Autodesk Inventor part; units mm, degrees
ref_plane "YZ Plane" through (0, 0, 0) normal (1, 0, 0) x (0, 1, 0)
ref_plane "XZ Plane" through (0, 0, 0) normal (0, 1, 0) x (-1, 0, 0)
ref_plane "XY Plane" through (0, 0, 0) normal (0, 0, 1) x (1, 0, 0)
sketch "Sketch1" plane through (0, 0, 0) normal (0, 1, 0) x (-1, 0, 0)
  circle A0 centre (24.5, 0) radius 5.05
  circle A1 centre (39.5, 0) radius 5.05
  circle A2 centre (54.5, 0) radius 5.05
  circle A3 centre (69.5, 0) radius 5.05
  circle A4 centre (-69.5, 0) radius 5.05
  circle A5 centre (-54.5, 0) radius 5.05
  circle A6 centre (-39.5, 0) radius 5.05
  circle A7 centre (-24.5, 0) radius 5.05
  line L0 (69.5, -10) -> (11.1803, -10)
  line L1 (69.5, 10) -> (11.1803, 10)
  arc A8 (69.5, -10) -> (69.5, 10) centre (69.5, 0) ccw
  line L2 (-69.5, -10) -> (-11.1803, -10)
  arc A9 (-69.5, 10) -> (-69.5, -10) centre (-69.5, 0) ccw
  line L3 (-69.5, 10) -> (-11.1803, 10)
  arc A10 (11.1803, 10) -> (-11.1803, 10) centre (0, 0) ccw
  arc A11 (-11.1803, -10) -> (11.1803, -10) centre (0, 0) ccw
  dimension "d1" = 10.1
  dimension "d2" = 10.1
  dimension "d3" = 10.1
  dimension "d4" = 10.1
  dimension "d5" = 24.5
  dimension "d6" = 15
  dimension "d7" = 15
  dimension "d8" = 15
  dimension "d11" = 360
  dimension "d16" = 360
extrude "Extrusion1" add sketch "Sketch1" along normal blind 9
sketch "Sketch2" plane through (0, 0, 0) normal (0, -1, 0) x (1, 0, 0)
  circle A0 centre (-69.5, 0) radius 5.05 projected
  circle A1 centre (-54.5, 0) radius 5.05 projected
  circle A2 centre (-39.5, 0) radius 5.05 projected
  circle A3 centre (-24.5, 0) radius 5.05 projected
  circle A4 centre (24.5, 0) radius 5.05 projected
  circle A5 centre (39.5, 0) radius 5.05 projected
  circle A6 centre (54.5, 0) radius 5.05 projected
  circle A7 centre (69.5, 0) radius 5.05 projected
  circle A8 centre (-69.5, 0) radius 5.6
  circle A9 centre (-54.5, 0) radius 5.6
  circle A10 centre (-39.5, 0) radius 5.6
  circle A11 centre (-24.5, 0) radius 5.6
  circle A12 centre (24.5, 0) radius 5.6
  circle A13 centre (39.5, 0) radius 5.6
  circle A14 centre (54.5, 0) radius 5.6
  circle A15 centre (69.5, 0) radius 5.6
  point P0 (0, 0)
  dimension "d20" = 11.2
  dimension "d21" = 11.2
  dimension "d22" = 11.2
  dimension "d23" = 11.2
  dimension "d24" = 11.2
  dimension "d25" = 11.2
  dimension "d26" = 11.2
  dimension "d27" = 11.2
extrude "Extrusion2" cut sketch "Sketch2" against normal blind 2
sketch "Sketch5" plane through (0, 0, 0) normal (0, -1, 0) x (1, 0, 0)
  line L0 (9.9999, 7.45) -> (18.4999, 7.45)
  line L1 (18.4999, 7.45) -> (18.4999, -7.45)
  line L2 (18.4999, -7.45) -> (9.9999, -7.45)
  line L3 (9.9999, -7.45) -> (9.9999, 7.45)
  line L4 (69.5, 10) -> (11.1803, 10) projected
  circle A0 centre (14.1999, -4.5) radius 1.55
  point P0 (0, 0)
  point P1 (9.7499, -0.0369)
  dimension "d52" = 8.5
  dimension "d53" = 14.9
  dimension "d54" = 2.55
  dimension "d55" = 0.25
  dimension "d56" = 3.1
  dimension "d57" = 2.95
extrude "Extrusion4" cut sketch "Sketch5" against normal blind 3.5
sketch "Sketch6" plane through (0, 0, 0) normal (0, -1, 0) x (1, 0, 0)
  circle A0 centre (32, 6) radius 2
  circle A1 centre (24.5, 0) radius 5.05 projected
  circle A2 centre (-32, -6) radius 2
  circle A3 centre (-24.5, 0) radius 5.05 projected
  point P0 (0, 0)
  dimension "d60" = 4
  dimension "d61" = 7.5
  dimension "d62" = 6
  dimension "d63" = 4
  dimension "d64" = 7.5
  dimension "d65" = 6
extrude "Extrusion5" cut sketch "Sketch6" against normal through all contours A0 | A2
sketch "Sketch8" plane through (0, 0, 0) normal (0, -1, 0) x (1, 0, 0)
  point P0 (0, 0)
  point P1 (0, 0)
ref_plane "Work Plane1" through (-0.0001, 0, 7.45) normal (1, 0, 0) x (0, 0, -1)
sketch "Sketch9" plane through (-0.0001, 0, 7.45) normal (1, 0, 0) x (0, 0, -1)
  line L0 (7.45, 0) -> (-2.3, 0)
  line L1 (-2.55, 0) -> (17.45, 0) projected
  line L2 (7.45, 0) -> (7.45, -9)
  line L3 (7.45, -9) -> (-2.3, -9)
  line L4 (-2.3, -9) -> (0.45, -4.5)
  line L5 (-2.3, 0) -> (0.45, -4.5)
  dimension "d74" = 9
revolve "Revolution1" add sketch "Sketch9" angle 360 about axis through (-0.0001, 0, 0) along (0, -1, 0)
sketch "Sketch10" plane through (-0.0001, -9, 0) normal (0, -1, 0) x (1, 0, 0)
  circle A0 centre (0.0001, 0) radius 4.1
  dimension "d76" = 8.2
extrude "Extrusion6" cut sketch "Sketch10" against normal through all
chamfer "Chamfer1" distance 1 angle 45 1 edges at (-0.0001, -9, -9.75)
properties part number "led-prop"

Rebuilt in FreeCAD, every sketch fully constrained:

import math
import FreeCAD as App
import Part
import Sketcher
Q = App.Units.Quantity


def edges_at(feature, points):
    """Names of the edges that pass closest to the given points."""
    edges = feature.Shape.Edges
    near = lambda p: min(range(len(edges)), key=lambda i: edges[i].distToShape(Part.Vertex(*p))[0])
    return sorted({f"Edge{near(p) + 1}" for p in points})

doc = App.newDocument("Part")
params = doc.addObject("Spreadsheet::Sheet", "Params")
for row, (alias, value) in enumerate([
    ("sketch1_radius", "15 mm"),
    ("sketch1_diameter", "10.1 mm"),
    ("sketch1_radius2", "10 mm"),
    ("pad1_length", "9 mm"),
    ("sketch2_diameter", "11.2 mm"),
    ("sketch2_diameter2", "10.1 mm"),
    ("pocket1_length", "2 mm"),
    ("sketch3_diameter", "3.1 mm"),
    ("sketch3_width", "8.5 mm"),
    ("sketch3_height", "14.9 mm"),
    ("pocket2_length", "3.5 mm"),
    ("sketch4_diameter", "4 mm"),
    ("sketch5_width", "9 mm"),
    ("sketch5_height", "9.75 mm"),
    ("revolution_angle", "360 deg"),
    ("sketch6_diameter", "8.2 mm"),
    ("chamfer_size", "1 mm"),
], start=1):
    params.set(f"A{row}", alias)
    params.set(f"B{row}", "=" + value)
    params.setAlias(f"B{row}", alias)

body = doc.addObject("PartDesign::Body", "Body")

# Sketch on XZ plane
sketch1 = body.newObject("Sketcher::SketchObject", "Sketch")
sketch1.AttachmentSupport = (doc.getObject("XZ_Plane"), [""])
sketch1.MapMode = "FlatFace"
sketch1.addGeometry(Part.LineSegment(App.Vector(-11.1803, -10, 0), App.Vector(-69.5, -10, 0)), False)
sketch1.addGeometry(Part.ArcOfCircle(Part.Circle(App.Vector(-69.5, 0, 0), App.Vector(0, 0, 1), 10), math.radians(90), math.radians(270)), False)
sketch1.addGeometry(Part.LineSegment(App.Vector(-69.5, 10, 0), App.Vector(-11.1803, 10, 0)), False)
sketch1.addGeometry(Part.ArcOfCircle(Part.Circle(App.Vector(0, 0, 0), App.Vector(0, 0, 1), 14.99997), math.radians(41.810416), math.radians(138.189584)), False)
sketch1.addGeometry(Part.LineSegment(App.Vector(11.1803, 10, 0), App.Vector(69.5, 10, 0)), False)
sketch1.addGeometry(Part.ArcOfCircle(Part.Circle(App.Vector(69.5, 0, 0), App.Vector(0, 0, 1), 10), math.radians(-90), math.radians(90)), False)
sketch1.addGeometry(Part.LineSegment(App.Vector(69.5, -10, 0), App.Vector(11.1803, -10, 0)), False)
sketch1.addGeometry(Part.ArcOfCircle(Part.Circle(App.Vector(0, 0, 0), App.Vector(0, 0, 1), 14.99997), math.radians(-138.189584), math.radians(-41.810416)), False)
sketch1.addGeometry(Part.Circle(App.Vector(69.5, 0, 0), App.Vector(0, 0, 1), 5.05), False)
sketch1.addGeometry(Part.Circle(App.Vector(54.5, 0, 0), App.Vector(0, 0, 1), 5.05), False)
sketch1.addGeometry(Part.Circle(App.Vector(39.5, 0, 0), App.Vector(0, 0, 1), 5.05), False)
sketch1.addGeometry(Part.Circle(App.Vector(24.5, 0, 0), App.Vector(0, 0, 1), 5.05), False)
sketch1.addGeometry(Part.Circle(App.Vector(-24.5, 0, 0), App.Vector(0, 0, 1), 5.05), False)
sketch1.addGeometry(Part.Circle(App.Vector(-39.5, 0, 0), App.Vector(0, 0, 1), 5.05), False)
sketch1.addGeometry(Part.Circle(App.Vector(-54.5, 0, 0), App.Vector(0, 0, 1), 5.05), False)
sketch1.addGeometry(Part.Circle(App.Vector(-69.5, 0, 0), App.Vector(0, 0, 1), 5.05), False)
sketch1.addConstraint(Sketcher.Constraint("Tangent", 0, 2, 1, 2))
sketch1.addConstraint(Sketcher.Constraint("Tangent", 1, 1, 2, 1))
sketch1.addConstraint(Sketcher.Constraint("Coincident", 2, 2, 3, 2))
sketch1.addConstraint(Sketcher.Constraint("Coincident", 3, 1, 4, 1))
sketch1.addConstraint(Sketcher.Constraint("Tangent", 4, 2, 5, 2))
sketch1.addConstraint(Sketcher.Constraint("Tangent", 5, 1, 6, 1))
sketch1.addConstraint(Sketcher.Constraint("Coincident", 6, 2, 7, 2))
sketch1.addConstraint(Sketcher.Constraint("Coincident", 7, 1, 0, 1))
sketch1.addConstraint(Sketcher.Constraint("Horizontal", 0))
sketch1.addConstraint(Sketcher.Constraint("Horizontal", 2))
sketch1.addConstraint(Sketcher.Constraint("Horizontal", 4))
sketch1.addConstraint(Sketcher.Constraint("Horizontal", 6))
sketch1.addConstraint(Sketcher.Constraint("Coincident", 3, 3, -1, 1))
sketch1.addConstraint(Sketcher.Constraint("Coincident", 7, 3, -1, 1))
sketch1.addConstraint(Sketcher.Constraint("Coincident", 8, 3, 5, 3))
sketch1.addConstraint(Sketcher.Constraint("Coincident", 15, 3, 1, 3))
sketch1.addConstraint(Sketcher.Constraint("Equal", 1, 5))
sketch1.addConstraint(Sketcher.Constraint("Equal", 3, 7))
sketch1.addConstraint(Sketcher.Constraint("Equal", 8, 9))
sketch1.addConstraint(Sketcher.Constraint("Equal", 9, 10))
sketch1.addConstraint(Sketcher.Constraint("Equal", 10, 11))
sketch1.addConstraint(Sketcher.Constraint("Equal", 11, 12))
sketch1.addConstraint(Sketcher.Constraint("Equal", 12, 13))
sketch1.addConstraint(Sketcher.Constraint("Equal", 13, 14))
sketch1.addConstraint(Sketcher.Constraint("Equal", 14, 15))
sketch1.addConstraint(Sketcher.Constraint("Symmetric", 1, 3, 5, 3, -1, 1))
sketch1.addConstraint(Sketcher.Constraint("Symmetric", 11, 3, 12, 3, -1, 1))
sketch1.addConstraint(Sketcher.Constraint("Symmetric", 10, 3, 13, 3, -1, 1))
sketch1.addConstraint(Sketcher.Constraint("Symmetric", 9, 3, 14, 3, -1, 1))
sketch1.addConstraint(Sketcher.Constraint("PointOnObject", 1, 3, -1))
sketch1.addConstraint(Sketcher.Constraint("PointOnObject", 9, 3, -1))
sketch1.addConstraint(Sketcher.Constraint("PointOnObject", 10, 3, -1))
sketch1.addConstraint(Sketcher.Constraint("PointOnObject", 11, 3, -1))
sketch1.addConstraint(Sketcher.Constraint("Radius", 3, Q("15 mm")))
sketch1.addConstraint(Sketcher.Constraint("Diameter", 8, Q("10.1 mm")))
sketch1.addConstraint(Sketcher.Constraint("Radius", 1, Q("10 mm")))
sketch1.addConstraint(Sketcher.Constraint("DistanceX", 9, 3, 5, 3, Q("15 mm")))
sketch1.addConstraint(Sketcher.Constraint("DistanceX", 10, 3, 9, 3, Q("15 mm")))
sketch1.addConstraint(Sketcher.Constraint("DistanceX", 11, 3, 10, 3, Q("15 mm")))
sketch1.addConstraint(Sketcher.Constraint("DistanceX", -1, 1, 11, 3, Q("24.5 mm")))
sketch1.setExpression("Constraints[33]", "Params.sketch1_radius")
sketch1.setExpression("Constraints[34]", "Params.sketch1_diameter")
sketch1.setExpression("Constraints[35]", "Params.sketch1_radius2")
pad1 = body.newObject("PartDesign::Pad", "Pad")
pad1.Profile = sketch1
pad1.setExpression("Length", "Params.pad1_length")
pad1.Reversed = True

# Sketch on XZ plane
sketch2 = body.newObject("Sketcher::SketchObject", "Sketch001")
sketch2.AttachmentSupport = (doc.getObject("XZ_Plane"), [""])
sketch2.MapMode = "FlatFace"
sketch2.addGeometry(Part.Circle(App.Vector(-69.5, 0, 0), App.Vector(0, 0, 1), 5.6), False)
sketch2.addGeometry(Part.Circle(App.Vector(-69.5, 0, 0), App.Vector(0, 0, 1), 5.05), False)
sketch2.addGeometry(Part.Circle(App.Vector(-54.5, 0, 0), App.Vector(0, 0, 1), 5.6), False)
sketch2.addGeometry(Part.Circle(App.Vector(-54.5, 0, 0), App.Vector(0, 0, 1), 5.05), False)
sketch2.addGeometry(Part.Circle(App.Vector(-39.5, 0, 0), App.Vector(0, 0, 1), 5.6), False)
sketch2.addGeometry(Part.Circle(App.Vector(-39.5, 0, 0), App.Vector(0, 0, 1), 5.05), False)
sketch2.addGeometry(Part.Circle(App.Vector(-24.5, 0, 0), App.Vector(0, 0, 1), 5.6), False)
sketch2.addGeometry(Part.Circle(App.Vector(-24.5, 0, 0), App.Vector(0, 0, 1), 5.05), False)
sketch2.addGeometry(Part.Circle(App.Vector(24.5, 0, 0), App.Vector(0, 0, 1), 5.6), False)
sketch2.addGeometry(Part.Circle(App.Vector(24.5, 0, 0), App.Vector(0, 0, 1), 5.05), False)
sketch2.addGeometry(Part.Circle(App.Vector(39.5, 0, 0), App.Vector(0, 0, 1), 5.6), False)
sketch2.addGeometry(Part.Circle(App.Vector(39.5, 0, 0), App.Vector(0, 0, 1), 5.05), False)
sketch2.addGeometry(Part.Circle(App.Vector(54.5, 0, 0), App.Vector(0, 0, 1), 5.6), False)
sketch2.addGeometry(Part.Circle(App.Vector(54.5, 0, 0), App.Vector(0, 0, 1), 5.05), False)
sketch2.addGeometry(Part.Circle(App.Vector(69.5, 0, 0), App.Vector(0, 0, 1), 5.6), False)
sketch2.addGeometry(Part.Circle(App.Vector(69.5, 0, 0), App.Vector(0, 0, 1), 5.05), False)
sketch2.addConstraint(Sketcher.Constraint("Coincident", 1, 3, 0, 3))
sketch2.addConstraint(Sketcher.Constraint("Coincident", 3, 3, 2, 3))
sketch2.addConstraint(Sketcher.Constraint("Coincident", 5, 3, 4, 3))
sketch2.addConstraint(Sketcher.Constraint("Coincident", 7, 3, 6, 3))
sketch2.addConstraint(Sketcher.Constraint("Coincident", 9, 3, 8, 3))
sketch2.addConstraint(Sketcher.Constraint("Coincident", 11, 3, 10, 3))
sketch2.addConstraint(Sketcher.Constraint("Coincident", 13, 3, 12, 3))
sketch2.addConstraint(Sketcher.Constraint("Coincident", 15, 3, 14, 3))
sketch2.addConstraint(Sketcher.Constraint("Equal", 0, 2))
sketch2.addConstraint(Sketcher.Constraint("Equal", 1, 3))
sketch2.addConstraint(Sketcher.Constraint("Equal", 2, 4))
sketch2.addConstraint(Sketcher.Constraint("Equal", 3, 5))
sketch2.addConstraint(Sketcher.Constraint("Equal", 4, 6))
sketch2.addConstraint(Sketcher.Constraint("Equal", 5, 7))
sketch2.addConstraint(Sketcher.Constraint("Equal", 6, 8))
sketch2.addConstraint(Sketcher.Constraint("Equal", 7, 9))
sketch2.addConstraint(Sketcher.Constraint("Equal", 8, 10))
sketch2.addConstraint(Sketcher.Constraint("Equal", 9, 11))
sketch2.addConstraint(Sketcher.Constraint("Equal", 10, 12))
sketch2.addConstraint(Sketcher.Constraint("Equal", 11, 13))
sketch2.addConstraint(Sketcher.Constraint("Equal", 12, 14))
sketch2.addConstraint(Sketcher.Constraint("Equal", 13, 15))
sketch2.addConstraint(Sketcher.Constraint("Symmetric", 6, 3, 8, 3, -1, 1))
sketch2.addConstraint(Sketcher.Constraint("Symmetric", 4, 3, 10, 3, -1, 1))
sketch2.addConstraint(Sketcher.Constraint("Symmetric", 2, 3, 12, 3, -1, 1))
sketch2.addConstraint(Sketcher.Constraint("Symmetric", 0, 3, 14, 3, -1, 1))
sketch2.addConstraint(Sketcher.Constraint("PointOnObject", 0, 3, -1))
sketch2.addConstraint(Sketcher.Constraint("PointOnObject", 2, 3, -1))
sketch2.addConstraint(Sketcher.Constraint("PointOnObject", 4, 3, -1))
sketch2.addConstraint(Sketcher.Constraint("PointOnObject", 6, 3, -1))
sketch2.addConstraint(Sketcher.Constraint("Diameter", 0, Q("11.2 mm")))
sketch2.addConstraint(Sketcher.Constraint("Diameter", 1, Q("10.1 mm")))
sketch2.addConstraint(Sketcher.Constraint("DistanceX", 0, 3, 2, 3, Q("15 mm")))
sketch2.addConstraint(Sketcher.Constraint("DistanceX", 2, 3, 4, 3, Q("15 mm")))
sketch2.addConstraint(Sketcher.Constraint("DistanceX", 4, 3, 6, 3, Q("15 mm")))
sketch2.addConstraint(Sketcher.Constraint("DistanceX", 6, 3, 8, 3, Q("49 mm")))
sketch2.setExpression("Constraints[30]", "Params.sketch2_diameter")
sketch2.setExpression("Constraints[31]", "Params.sketch2_diameter2")
pocket1 = body.newObject("PartDesign::Pocket", "Pocket")
pocket1.Profile = sketch2
pocket1.setExpression("Length", "Params.pocket1_length")

# Sketch on XZ plane
sketch3 = body.newObject("Sketcher::SketchObject", "Sketch002")
sketch3.AttachmentSupport = (doc.getObject("XZ_Plane"), [""])
sketch3.MapMode = "FlatFace"
sketch3.addGeometry(Part.LineSegment(App.Vector(18.4999, 7.45, 0), App.Vector(9.9999, 7.45, 0)), False)
sketch3.addGeometry(Part.LineSegment(App.Vector(9.9999, 7.45, 0), App.Vector(9.9999, -7.45, 0)), False)
sketch3.addGeometry(Part.LineSegment(App.Vector(9.9999, -7.45, 0), App.Vector(18.4999, -7.45, 0)), False)
sketch3.addGeometry(Part.LineSegment(App.Vector(18.4999, -7.45, 0), App.Vector(18.4999, 7.45, 0)), False)
sketch3.addGeometry(Part.Circle(App.Vector(14.1999, -4.5, 0), App.Vector(0, 0, 1), 1.55), False)
sketch3.addConstraint(Sketcher.Constraint("Coincident", 0, 2, 1, 1))
sketch3.addConstraint(Sketcher.Constraint("Coincident", 1, 2, 2, 1))
sketch3.addConstraint(Sketcher.Constraint("Coincident", 2, 2, 3, 1))
sketch3.addConstraint(Sketcher.Constraint("Coincident", 3, 2, 0, 1))
sketch3.addConstraint(Sketcher.Constraint("Horizontal", 0))
sketch3.addConstraint(Sketcher.Constraint("Vertical", 1))
sketch3.addConstraint(Sketcher.Constraint("Horizontal", 2))
sketch3.addConstraint(Sketcher.Constraint("Vertical", 3))
sketch3.addConstraint(Sketcher.Constraint("Diameter", 4, Q("3.1 mm")))
sketch3.addConstraint(Sketcher.Constraint("DistanceX", 0, 2, 0, 1, Q("8.5 mm")))
sketch3.addConstraint(Sketcher.Constraint("DistanceY", 1, 2, 1, 1, Q("14.9 mm")))
sketch3.addConstraint(Sketcher.Constraint("DistanceY", 1, 2, 4, 3, Q("2.95 mm")))
sketch3.addConstraint(Sketcher.Constraint("DistanceX", -1, 1, 0, 2, Q("10 mm")))
sketch3.addConstraint(Sketcher.Constraint("DistanceX", -1, 1, 4, 3, Q("14.2 mm")))
sketch3.addConstraint(Sketcher.Constraint("DistanceY", 4, 3, -1, 1, Q("4.5 mm")))
sketch3.setExpression("Constraints[8]", "Params.sketch3_diameter")
sketch3.setExpression("Constraints[9]", "Params.sketch3_width")
sketch3.setExpression("Constraints[10]", "Params.sketch3_height")
pocket2 = body.newObject("PartDesign::Pocket", "Pocket001")
pocket2.Profile = sketch3
pocket2.setExpression("Length", "Params.pocket2_length")

# Sketch on XZ plane
sketch4 = body.newObject("Sketcher::SketchObject", "Sketch003")
sketch4.AttachmentSupport = (doc.getObject("XZ_Plane"), [""])
sketch4.MapMode = "FlatFace"
sketch4.addGeometry(Part.Circle(App.Vector(32, 6, 0), App.Vector(0, 0, 1), 2), False)
sketch4.addGeometry(Part.Circle(App.Vector(-32, -6, 0), App.Vector(0, 0, 1), 2), False)
sketch4.addConstraint(Sketcher.Constraint("Equal", 0, 1))
sketch4.addConstraint(Sketcher.Constraint("Symmetric", 0, 3, 1, 3, -1, 1))
sketch4.addConstraint(Sketcher.Constraint("Diameter", 0, Q("4 mm")))
sketch4.addConstraint(Sketcher.Constraint("DistanceY", -1, 1, 0, 3, Q("6 mm")))
sketch4.addConstraint(Sketcher.Constraint("DistanceX", -1, 1, 0, 3, Q("32 mm")))
sketch4.setExpression("Constraints[2]", "Params.sketch4_diameter")
pocket3 = body.newObject("PartDesign::Pocket", "Pocket002")
pocket3.Profile = sketch4
pocket3.Type = "ThroughAll"

# Sketch on YZ plane
sketch5 = body.newObject("Sketcher::SketchObject", "Sketch004")
sketch5.AttachmentSupport = (doc.getObject("YZ_Plane"), [""])
sketch5.MapMode = "FlatFace"
sketch5.AttachmentOffset = App.Placement(App.Vector(0, 0, -0.0001), App.Rotation())
sketch5.addGeometry(Part.LineSegment(App.Vector(-9, 0, 0), App.Vector(0, 0, 0)), False)
sketch5.addGeometry(Part.LineSegment(App.Vector(0, 0, 0), App.Vector(0, 9.75, 0)), False)
sketch5.addGeometry(Part.LineSegment(App.Vector(0, 9.75, 0), App.Vector(-4.5, 7, 0)), False)
sketch5.addGeometry(Part.LineSegment(App.Vector(-4.5, 7, 0), App.Vector(-9, 9.75, 0)), False)
sketch5.addGeometry(Part.LineSegment(App.Vector(-9, 9.75, 0), App.Vector(-9, 0, 0)), False)
sketch5.addConstraint(Sketcher.Constraint("Coincident", 0, 2, 1, 1))
sketch5.addConstraint(Sketcher.Constraint("Coincident", 1, 2, 2, 1))
sketch5.addConstraint(Sketcher.Constraint("Coincident", 2, 2, 3, 1))
sketch5.addConstraint(Sketcher.Constraint("Coincident", 3, 2, 4, 1))
sketch5.addConstraint(Sketcher.Constraint("Coincident", 4, 2, 0, 1))
sketch5.addConstraint(Sketcher.Constraint("Horizontal", 0))
sketch5.addConstraint(Sketcher.Constraint("Vertical", 1))
sketch5.addConstraint(Sketcher.Constraint("Vertical", 4))
sketch5.addConstraint(Sketcher.Constraint("Coincident", 0, 2, -1, 1))
sketch5.addConstraint(Sketcher.Constraint("Horizontal", 1, 2, 3, 2))
sketch5.addConstraint(Sketcher.Constraint("Equal", 2, 3))
sketch5.addConstraint(Sketcher.Constraint("DistanceX", 0, 1, 0, 2, Q("9 mm")))
sketch5.addConstraint(Sketcher.Constraint("DistanceY", -1, 1, 2, 2, Q("7 mm")))
sketch5.addConstraint(Sketcher.Constraint("DistanceY", 1, 1, 1, 2, Q("9.75 mm")))
sketch5.setExpression("Constraints[11]", "Params.sketch5_width")
sketch5.setExpression("Constraints[13]", "Params.sketch5_height")
revolution = body.newObject("PartDesign::Revolution", "Revolution")
revolution.Profile = sketch5
revolution.ReferenceAxis = (sketch5, ["H_Axis"])
revolution.setExpression("Angle", "Params.revolution_angle")

# Sketch on XZ plane
sketch6 = body.newObject("Sketcher::SketchObject", "Sketch005")
sketch6.AttachmentSupport = (doc.getObject("XZ_Plane"), [""])
sketch6.MapMode = "FlatFace"
sketch6.AttachmentOffset = App.Placement(App.Vector(0, 0, 9), App.Rotation())
sketch6.addGeometry(Part.Circle(App.Vector(0, 0, 0), App.Vector(0, 0, 1), 4.1), False)
sketch6.addConstraint(Sketcher.Constraint("Coincident", 0, 3, -1, 1))
sketch6.addConstraint(Sketcher.Constraint("Diameter", 0, Q("8.2 mm")))
sketch6.setExpression("Constraints[1]", "Params.sketch6_diameter")
pocket4 = body.newObject("PartDesign::Pocket", "Pocket003")
pocket4.Profile = sketch6
pocket4.Type = "ThroughAll"
doc.recompute()

chamfer = body.newObject("PartDesign::Chamfer", "Chamfer")
chamfer.Base = (pocket4, edges_at(pocket4, [(0, -9, -9.75)]))
chamfer.setExpression("Size", "Params.chamfer_size")

doc.recompute()
